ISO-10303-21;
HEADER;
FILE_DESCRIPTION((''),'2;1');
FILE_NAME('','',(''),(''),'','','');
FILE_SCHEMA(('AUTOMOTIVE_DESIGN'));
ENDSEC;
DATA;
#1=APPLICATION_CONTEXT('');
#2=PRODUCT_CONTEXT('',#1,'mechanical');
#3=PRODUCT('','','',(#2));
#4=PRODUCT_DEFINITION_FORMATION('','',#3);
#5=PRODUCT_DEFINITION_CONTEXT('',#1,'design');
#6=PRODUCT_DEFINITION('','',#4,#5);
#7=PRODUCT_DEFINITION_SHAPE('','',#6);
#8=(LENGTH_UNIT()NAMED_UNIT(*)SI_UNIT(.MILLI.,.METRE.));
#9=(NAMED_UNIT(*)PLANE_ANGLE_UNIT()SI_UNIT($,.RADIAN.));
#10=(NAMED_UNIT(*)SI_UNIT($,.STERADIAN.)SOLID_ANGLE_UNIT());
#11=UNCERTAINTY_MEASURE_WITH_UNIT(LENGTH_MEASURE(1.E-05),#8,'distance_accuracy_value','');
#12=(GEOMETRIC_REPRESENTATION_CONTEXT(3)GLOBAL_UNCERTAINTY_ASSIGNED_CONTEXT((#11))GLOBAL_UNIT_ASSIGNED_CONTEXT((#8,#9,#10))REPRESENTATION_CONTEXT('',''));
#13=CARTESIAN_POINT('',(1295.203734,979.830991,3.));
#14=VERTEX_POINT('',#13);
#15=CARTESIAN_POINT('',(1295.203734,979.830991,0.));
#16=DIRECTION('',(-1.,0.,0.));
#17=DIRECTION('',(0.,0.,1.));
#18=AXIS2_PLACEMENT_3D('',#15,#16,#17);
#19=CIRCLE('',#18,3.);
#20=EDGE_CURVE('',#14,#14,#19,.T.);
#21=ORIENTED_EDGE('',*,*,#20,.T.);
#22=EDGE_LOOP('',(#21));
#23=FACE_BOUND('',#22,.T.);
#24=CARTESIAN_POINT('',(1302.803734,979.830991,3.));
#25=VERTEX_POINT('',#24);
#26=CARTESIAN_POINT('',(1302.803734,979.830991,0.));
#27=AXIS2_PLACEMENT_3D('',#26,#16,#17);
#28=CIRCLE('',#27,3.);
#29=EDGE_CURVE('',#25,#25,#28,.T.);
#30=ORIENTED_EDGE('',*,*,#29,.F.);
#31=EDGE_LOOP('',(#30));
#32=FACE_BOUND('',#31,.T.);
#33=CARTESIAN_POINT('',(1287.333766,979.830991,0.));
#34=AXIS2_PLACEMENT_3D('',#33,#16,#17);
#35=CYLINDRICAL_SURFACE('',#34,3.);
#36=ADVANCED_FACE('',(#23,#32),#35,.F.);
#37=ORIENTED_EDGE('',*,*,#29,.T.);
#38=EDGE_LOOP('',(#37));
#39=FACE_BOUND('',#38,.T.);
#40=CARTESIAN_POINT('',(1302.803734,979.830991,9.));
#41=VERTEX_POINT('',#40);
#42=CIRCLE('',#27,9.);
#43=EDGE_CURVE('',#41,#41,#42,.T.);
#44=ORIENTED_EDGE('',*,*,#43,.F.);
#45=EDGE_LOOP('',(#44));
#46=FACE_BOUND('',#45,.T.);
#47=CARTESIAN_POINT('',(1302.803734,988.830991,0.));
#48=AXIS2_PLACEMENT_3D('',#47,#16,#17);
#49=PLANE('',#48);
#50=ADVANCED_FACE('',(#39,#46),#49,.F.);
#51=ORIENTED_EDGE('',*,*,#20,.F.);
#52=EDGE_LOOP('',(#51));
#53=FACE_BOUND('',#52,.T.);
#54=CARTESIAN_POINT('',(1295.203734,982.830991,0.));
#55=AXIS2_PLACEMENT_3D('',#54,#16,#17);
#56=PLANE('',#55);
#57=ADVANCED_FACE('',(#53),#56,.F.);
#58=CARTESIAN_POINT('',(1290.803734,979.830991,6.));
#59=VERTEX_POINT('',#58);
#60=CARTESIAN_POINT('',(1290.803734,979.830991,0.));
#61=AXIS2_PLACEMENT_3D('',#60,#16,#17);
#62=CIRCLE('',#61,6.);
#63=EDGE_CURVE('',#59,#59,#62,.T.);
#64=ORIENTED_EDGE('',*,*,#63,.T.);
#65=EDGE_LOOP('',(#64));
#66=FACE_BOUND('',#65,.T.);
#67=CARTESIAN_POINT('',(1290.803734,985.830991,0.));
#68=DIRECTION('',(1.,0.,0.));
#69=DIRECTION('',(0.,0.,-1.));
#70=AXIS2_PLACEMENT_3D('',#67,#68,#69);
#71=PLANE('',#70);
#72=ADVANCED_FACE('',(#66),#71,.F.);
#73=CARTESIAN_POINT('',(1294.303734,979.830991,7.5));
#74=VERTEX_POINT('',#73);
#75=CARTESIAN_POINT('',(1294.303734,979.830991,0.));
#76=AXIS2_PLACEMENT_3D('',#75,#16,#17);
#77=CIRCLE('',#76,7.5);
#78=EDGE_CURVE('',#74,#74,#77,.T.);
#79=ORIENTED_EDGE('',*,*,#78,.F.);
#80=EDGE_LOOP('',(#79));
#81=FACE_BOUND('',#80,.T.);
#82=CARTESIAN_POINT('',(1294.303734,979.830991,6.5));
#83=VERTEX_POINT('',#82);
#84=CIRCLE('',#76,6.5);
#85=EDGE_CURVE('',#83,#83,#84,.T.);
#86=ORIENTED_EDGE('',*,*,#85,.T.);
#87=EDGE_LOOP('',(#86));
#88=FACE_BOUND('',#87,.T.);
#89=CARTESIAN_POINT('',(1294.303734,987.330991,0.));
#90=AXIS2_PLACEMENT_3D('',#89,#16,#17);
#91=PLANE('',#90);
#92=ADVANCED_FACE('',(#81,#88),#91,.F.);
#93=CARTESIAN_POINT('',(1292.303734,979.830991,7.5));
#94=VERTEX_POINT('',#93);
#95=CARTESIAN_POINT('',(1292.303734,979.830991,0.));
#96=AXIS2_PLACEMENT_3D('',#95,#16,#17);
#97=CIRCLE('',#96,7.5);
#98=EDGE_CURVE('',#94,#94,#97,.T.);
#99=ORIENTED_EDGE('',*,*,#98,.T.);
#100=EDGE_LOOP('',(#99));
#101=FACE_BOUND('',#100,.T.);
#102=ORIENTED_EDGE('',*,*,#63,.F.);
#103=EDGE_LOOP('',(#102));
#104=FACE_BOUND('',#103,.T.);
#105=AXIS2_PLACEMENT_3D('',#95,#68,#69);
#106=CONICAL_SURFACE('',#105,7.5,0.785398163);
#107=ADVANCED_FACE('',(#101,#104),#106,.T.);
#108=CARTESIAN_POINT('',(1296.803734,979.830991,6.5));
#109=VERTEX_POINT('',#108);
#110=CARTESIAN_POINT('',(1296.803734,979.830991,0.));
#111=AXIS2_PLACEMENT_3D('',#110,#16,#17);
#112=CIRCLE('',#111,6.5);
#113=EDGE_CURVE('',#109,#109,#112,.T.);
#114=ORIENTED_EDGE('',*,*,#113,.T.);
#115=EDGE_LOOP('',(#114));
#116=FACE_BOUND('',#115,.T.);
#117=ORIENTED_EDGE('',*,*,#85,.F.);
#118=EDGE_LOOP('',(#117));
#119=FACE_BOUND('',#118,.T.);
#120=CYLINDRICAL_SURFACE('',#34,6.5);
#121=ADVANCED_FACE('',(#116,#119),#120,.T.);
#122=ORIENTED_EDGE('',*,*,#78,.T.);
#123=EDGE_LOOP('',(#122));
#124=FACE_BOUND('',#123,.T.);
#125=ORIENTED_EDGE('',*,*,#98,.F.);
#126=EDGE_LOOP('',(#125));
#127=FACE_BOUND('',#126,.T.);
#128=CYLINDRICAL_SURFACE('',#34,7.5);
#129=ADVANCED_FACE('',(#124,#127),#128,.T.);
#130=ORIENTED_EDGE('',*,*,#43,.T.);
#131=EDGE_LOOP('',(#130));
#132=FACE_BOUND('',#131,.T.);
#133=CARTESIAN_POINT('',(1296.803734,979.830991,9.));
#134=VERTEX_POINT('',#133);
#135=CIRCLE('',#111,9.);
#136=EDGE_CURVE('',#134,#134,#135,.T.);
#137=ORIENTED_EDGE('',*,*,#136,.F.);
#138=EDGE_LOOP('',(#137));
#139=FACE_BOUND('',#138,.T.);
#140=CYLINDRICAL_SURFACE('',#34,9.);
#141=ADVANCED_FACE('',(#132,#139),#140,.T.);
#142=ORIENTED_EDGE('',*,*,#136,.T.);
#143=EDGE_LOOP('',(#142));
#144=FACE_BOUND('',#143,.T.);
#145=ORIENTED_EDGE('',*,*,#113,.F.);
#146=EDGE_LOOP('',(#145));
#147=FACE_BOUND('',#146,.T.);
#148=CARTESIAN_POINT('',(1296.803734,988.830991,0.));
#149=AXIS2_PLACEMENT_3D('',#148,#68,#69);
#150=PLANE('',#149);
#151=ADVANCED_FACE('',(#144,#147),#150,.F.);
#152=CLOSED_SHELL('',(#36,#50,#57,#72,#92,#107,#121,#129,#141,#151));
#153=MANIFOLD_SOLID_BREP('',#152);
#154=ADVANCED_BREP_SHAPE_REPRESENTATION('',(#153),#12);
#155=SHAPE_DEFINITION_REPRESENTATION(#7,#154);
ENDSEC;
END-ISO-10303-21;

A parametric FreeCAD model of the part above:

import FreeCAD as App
import Part
import Sketcher
from FreeCAD import Vector
Q = App.Units.Quantity


def add_polygon(sketch, points):
    """Adds a closed chain of lines whose ends are joined by coincident constraints."""
    first, n = sketch.GeometryCount, len(points)
    for a, b in zip(points, points[1:] + points[:1]):
        sketch.addGeometry(Part.LineSegment(App.Vector(*a, 0), App.Vector(*b, 0)), False)
    for i in range(n):
        sketch.addConstraint(Sketcher.Constraint("Coincident", first + i, 2, first + (i + 1) % n, 1))

doc = App.newDocument("Part")
body = doc.addObject("PartDesign::Body", "Body")

sketch1 = body.newObject("Sketcher::SketchObject", "Sketch")
sketch1.AttachmentSupport = (doc.getObject("XY_Plane"), [""])
sketch1.MapMode = "FlatFace"
add_polygon(sketch1, [(1295.203734, 979.830991), (1295.203734, 982.830991), (1302.803734, 982.830991), (1302.803734, 988.830991), (1296.803734, 988.830991), (1296.803734, 986.330991), (1294.303734, 986.330991), (1294.303734, 987.330991), (1292.303734, 987.330991), (1290.803734, 985.830991), (1290.803734, 979.830991)])
sketch1.addGeometry(Part.LineSegment(Vector(1290.803734, 979.830991, 0), Vector(1302.803734, 979.830991, 0)), True)
sketch1.addConstraint(Sketcher.Constraint("Vertical", 0))
sketch1.addConstraint(Sketcher.Constraint("Horizontal", 1))
sketch1.addConstraint(Sketcher.Constraint("Vertical", 2))
sketch1.addConstraint(Sketcher.Constraint("Horizontal", 3))
sketch1.addConstraint(Sketcher.Constraint("Vertical", 4))
sketch1.addConstraint(Sketcher.Constraint("Horizontal", 5))
sketch1.addConstraint(Sketcher.Constraint("Vertical", 6))
sketch1.addConstraint(Sketcher.Constraint("Horizontal", 7))
sketch1.addConstraint(Sketcher.Constraint("Vertical", 9))
sketch1.addConstraint(Sketcher.Constraint("Horizontal", 10))
sketch1.addConstraint(Sketcher.Constraint("Horizontal", 11))
sketch1.addConstraint(Sketcher.Constraint("Coincident", 11, 1, 9, 2))
sketch1.addConstraint(Sketcher.Constraint("Vertical", 2, 2, 11, 2))
sketch1.addConstraint(Sketcher.Constraint("Equal", 3, 2))
sketch1.addConstraint(Sketcher.Constraint("Equal", 5, 4))
sketch1.addConstraint(Sketcher.Constraint("Equal", 2, 9))
sketch1.addConstraint(Sketcher.Constraint("DistanceX", 3, 2, 3, 1, Q("6 mm")))
sketch1.addConstraint(Sketcher.Constraint("DistanceX", 7, 2, 7, 1, Q("2 mm")))
sketch1.addConstraint(Sketcher.Constraint("DistanceX", 11, 1, 11, 2, Q("12 mm")))
sketch1.addConstraint(Sketcher.Constraint("DistanceY", 0, 1, 0, 2, Q("3 mm")))
sketch1.addConstraint(Sketcher.Constraint("DistanceY", 6, 1, 6, 2, Q("1 mm")))
sketch1.addConstraint(Sketcher.Constraint("DistanceX", 1, 1, 1, 2, Q("7.6 mm")))
sketch1.addConstraint(Sketcher.Constraint("DistanceX", 5, 2, 5, 1, Q("2.5 mm")))
sketch1.addConstraint(Sketcher.Constraint("DistanceY", -1, 1, 0, 2, Q("982.830991 mm")))
sketch1.addConstraint(Sketcher.Constraint("DistanceX", -1, 1, 0, 2, Q("1295.203734 mm")))
revolution = body.newObject("PartDesign::Revolution", "Revolution")
revolution.Profile = sketch1
revolution.ReferenceAxis = (sketch1, ["Axis0"])
revolution.Angle = 360

doc.recompute()
